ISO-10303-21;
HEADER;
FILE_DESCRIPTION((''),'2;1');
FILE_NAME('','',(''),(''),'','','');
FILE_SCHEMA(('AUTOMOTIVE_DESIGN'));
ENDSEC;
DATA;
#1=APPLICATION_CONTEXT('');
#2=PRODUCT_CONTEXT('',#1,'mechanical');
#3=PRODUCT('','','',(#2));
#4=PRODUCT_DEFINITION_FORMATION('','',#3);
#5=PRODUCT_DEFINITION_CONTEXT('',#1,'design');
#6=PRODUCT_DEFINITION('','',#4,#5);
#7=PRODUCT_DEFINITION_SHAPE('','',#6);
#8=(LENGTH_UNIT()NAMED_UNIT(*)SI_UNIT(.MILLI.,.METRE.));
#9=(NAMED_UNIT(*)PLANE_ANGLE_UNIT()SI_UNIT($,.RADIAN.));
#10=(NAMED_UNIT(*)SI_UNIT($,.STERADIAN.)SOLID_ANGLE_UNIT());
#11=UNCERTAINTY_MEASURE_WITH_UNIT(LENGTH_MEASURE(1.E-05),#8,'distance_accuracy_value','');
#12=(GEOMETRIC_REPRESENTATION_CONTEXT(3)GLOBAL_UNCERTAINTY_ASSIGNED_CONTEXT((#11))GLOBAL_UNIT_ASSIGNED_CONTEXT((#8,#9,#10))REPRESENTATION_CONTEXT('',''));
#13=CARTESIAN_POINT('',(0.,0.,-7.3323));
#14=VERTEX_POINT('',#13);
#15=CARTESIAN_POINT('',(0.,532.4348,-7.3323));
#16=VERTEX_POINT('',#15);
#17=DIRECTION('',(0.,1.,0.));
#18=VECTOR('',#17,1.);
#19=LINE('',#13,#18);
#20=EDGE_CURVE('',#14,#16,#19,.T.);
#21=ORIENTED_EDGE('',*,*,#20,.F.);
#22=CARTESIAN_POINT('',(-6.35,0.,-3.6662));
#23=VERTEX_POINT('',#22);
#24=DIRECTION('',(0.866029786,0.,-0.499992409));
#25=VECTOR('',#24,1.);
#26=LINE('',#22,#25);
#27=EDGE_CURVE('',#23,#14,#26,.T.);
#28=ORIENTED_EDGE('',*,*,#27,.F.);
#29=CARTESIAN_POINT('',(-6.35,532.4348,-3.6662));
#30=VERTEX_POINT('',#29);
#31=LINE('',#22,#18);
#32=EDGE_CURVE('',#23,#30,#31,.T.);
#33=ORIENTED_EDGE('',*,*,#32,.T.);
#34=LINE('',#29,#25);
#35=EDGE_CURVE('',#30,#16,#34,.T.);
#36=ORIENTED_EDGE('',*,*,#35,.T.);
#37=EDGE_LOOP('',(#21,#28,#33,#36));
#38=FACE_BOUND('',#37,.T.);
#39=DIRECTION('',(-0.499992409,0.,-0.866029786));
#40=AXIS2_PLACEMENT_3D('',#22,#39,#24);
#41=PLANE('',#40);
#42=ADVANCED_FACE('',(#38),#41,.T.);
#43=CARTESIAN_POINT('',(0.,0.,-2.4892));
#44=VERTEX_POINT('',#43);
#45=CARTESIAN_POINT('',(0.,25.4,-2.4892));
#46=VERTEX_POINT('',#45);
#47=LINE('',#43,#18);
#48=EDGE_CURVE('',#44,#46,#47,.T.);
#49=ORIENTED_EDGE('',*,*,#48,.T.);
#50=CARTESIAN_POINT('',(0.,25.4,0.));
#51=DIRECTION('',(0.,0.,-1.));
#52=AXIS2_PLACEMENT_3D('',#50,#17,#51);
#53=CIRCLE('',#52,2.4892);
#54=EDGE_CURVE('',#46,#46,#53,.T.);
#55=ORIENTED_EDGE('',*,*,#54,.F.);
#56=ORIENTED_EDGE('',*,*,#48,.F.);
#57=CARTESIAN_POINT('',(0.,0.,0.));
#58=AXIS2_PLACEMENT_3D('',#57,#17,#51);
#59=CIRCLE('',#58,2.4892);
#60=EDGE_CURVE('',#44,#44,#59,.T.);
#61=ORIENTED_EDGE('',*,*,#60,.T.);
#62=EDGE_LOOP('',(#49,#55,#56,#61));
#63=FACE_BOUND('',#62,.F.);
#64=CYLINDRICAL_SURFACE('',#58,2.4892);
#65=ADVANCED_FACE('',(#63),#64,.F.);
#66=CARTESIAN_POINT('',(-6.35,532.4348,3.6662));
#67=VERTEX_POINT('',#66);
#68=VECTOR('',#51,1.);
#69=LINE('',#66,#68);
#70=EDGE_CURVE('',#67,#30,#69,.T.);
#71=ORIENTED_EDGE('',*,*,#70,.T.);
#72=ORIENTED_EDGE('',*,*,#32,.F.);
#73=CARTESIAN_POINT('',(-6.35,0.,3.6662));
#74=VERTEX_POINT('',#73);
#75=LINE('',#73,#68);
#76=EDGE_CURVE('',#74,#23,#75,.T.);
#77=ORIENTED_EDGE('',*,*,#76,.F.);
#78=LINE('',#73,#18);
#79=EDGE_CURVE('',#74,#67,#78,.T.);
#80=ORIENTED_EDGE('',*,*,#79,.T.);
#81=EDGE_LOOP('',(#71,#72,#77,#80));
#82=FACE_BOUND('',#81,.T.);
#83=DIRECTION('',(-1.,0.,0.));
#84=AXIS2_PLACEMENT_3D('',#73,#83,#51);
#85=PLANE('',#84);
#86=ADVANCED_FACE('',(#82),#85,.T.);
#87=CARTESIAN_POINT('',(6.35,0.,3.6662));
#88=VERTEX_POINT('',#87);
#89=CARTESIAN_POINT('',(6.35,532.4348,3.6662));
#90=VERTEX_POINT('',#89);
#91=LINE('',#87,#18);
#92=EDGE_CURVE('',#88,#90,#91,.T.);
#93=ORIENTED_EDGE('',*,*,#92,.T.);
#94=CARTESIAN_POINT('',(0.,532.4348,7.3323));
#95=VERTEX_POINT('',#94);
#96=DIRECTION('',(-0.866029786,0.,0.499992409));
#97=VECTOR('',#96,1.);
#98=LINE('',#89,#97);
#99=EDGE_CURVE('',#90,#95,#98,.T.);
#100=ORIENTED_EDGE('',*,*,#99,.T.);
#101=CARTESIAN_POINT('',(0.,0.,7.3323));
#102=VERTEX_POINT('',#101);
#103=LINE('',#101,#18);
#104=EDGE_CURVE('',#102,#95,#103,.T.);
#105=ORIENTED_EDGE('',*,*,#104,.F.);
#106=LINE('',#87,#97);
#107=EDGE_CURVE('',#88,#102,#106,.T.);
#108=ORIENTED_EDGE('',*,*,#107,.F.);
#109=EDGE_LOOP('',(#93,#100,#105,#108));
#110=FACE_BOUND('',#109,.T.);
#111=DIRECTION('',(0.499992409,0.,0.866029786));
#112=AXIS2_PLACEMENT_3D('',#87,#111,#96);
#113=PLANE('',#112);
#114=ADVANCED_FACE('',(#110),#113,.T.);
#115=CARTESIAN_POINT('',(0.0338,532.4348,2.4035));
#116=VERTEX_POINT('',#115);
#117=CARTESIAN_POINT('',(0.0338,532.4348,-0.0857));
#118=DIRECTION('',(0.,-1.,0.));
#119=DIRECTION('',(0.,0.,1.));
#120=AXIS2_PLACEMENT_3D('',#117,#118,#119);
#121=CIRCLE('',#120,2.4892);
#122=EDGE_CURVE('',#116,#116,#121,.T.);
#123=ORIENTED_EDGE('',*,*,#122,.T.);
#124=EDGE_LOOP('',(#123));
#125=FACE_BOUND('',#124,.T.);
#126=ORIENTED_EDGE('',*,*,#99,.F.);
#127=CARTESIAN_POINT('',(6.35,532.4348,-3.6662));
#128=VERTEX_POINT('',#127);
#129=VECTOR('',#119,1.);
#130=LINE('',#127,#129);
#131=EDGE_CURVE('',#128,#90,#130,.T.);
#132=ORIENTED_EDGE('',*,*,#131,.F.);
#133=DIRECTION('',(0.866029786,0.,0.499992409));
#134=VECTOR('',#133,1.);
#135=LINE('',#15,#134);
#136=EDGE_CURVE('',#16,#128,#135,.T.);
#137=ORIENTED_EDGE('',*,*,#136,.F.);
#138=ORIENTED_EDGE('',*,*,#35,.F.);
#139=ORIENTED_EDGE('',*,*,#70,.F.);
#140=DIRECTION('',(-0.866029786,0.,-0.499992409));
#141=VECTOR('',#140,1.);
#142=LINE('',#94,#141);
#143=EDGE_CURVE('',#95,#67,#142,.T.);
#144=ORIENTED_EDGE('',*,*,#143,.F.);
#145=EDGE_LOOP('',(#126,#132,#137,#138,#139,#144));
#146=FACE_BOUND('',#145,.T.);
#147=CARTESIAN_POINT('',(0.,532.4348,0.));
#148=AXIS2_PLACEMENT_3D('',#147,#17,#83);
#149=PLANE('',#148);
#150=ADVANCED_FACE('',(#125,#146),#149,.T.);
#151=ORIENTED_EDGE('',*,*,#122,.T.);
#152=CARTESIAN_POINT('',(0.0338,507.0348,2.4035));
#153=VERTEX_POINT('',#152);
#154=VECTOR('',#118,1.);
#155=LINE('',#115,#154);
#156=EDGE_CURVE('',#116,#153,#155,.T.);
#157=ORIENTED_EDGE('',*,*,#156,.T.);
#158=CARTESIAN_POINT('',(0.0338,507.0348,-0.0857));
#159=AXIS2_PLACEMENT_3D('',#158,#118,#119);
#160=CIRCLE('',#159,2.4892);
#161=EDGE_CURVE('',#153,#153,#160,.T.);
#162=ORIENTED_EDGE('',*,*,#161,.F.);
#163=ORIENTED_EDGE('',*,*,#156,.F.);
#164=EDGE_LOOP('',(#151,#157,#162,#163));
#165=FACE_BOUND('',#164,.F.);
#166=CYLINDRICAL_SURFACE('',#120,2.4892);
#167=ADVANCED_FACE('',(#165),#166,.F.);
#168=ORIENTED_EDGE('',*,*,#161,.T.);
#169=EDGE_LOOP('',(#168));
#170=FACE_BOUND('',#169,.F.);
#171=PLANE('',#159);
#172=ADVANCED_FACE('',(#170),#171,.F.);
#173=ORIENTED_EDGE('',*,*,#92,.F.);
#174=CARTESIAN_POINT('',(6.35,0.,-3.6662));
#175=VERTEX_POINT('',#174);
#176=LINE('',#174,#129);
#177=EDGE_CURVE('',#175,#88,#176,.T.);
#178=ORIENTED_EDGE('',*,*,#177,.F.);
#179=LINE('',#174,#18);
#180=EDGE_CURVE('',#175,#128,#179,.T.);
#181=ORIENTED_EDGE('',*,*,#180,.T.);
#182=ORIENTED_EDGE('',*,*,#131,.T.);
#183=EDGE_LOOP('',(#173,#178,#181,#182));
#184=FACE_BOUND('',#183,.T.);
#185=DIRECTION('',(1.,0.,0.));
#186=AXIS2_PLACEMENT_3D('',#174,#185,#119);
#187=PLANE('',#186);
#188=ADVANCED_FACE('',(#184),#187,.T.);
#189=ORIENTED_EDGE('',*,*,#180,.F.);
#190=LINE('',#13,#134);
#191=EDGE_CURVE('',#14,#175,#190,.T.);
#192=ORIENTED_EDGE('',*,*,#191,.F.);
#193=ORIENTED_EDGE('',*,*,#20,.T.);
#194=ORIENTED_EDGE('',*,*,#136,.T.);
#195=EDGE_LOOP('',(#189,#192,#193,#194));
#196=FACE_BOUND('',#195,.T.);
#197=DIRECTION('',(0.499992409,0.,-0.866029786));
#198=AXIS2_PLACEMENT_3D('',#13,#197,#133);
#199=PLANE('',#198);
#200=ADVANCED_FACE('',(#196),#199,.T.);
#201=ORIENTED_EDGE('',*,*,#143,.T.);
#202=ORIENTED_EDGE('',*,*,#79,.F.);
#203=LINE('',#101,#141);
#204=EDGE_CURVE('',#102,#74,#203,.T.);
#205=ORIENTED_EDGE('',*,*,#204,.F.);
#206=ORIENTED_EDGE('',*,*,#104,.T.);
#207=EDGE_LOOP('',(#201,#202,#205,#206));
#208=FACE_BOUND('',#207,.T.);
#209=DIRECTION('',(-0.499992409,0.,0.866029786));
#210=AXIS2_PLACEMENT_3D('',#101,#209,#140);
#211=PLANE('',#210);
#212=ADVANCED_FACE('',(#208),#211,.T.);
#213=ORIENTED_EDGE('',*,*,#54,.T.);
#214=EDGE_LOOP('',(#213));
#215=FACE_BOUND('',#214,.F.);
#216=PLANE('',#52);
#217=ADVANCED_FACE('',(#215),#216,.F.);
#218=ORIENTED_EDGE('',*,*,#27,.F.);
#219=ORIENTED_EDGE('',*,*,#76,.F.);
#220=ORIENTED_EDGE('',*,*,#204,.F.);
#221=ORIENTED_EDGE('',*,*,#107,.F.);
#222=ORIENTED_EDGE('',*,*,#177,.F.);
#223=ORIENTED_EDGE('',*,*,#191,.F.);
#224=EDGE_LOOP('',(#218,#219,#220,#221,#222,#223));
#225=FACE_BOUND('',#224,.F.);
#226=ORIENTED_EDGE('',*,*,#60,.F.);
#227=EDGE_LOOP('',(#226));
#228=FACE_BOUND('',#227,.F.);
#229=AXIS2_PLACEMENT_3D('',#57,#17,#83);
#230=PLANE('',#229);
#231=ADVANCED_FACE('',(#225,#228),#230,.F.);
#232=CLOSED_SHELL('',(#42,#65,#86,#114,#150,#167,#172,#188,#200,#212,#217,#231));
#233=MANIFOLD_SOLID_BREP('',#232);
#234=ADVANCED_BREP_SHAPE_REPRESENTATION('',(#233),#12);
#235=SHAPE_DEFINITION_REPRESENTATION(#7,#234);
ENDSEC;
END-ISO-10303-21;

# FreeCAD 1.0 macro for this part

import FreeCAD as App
import Part
import Sketcher

V = App.Vector
Q = App.Units.Quantity

doc = App.newDocument("Part")
body = doc.addObject("PartDesign::Body", "Body")

# Sketch on XZ plane
sketch1 = body.newObject("Sketcher::SketchObject", "Sketch")
sketch1.AttachmentSupport = (doc.getObject("XZ_Plane"), [""])
sketch1.MapMode = "FlatFace"
sketch1.addGeometry(Part.LineSegment(V(0, -7, 0), V(-6, -4, 0)), False)
sketch1.addGeometry(Part.LineSegment(V(-6, -4, 0), V(-6, 4, 0)), False)
sketch1.addGeometry(Part.LineSegment(V(-6, 4, 0), V(0, 7, 0)), False)
sketch1.addGeometry(Part.LineSegment(V(0, 7, 0), V(6, 4, 0)), False)
sketch1.addGeometry(Part.LineSegment(V(6, 4, 0), V(6, -4, 0)), False)
sketch1.addGeometry(Part.LineSegment(V(6, -4, 0), V(0, -7, 0)), False)
sketch1.addConstraint(Sketcher.Constraint("Coincident", 0, 2, 1, 1))
sketch1.addConstraint(Sketcher.Constraint("Coincident", 1, 2, 2, 1))
sketch1.addConstraint(Sketcher.Constraint("Coincident", 2, 2, 3, 1))
sketch1.addConstraint(Sketcher.Constraint("Coincident", 3, 2, 4, 1))
sketch1.addConstraint(Sketcher.Constraint("Coincident", 4, 2, 5, 1))
sketch1.addConstraint(Sketcher.Constraint("Coincident", 5, 2, 0, 1))
sketch1.addConstraint(Sketcher.Constraint("Vertical", 1))
sketch1.addConstraint(Sketcher.Constraint("Vertical", 4))
sketch1.addConstraint(Sketcher.Constraint("Symmetric", 0, 2, 3, 2, -1, 1))
sketch1.addConstraint(Sketcher.Constraint("Symmetric", 2, 2, 5, 2, -1, 1))
sketch1.addConstraint(Sketcher.Constraint("PointOnObject", 2, 2, -2))
sketch1.addConstraint(Sketcher.Constraint("Parallel", 2, 5))
sketch1.addConstraint(Sketcher.Constraint("Horizontal", 1, 2, 3, 2))
sketch1.addConstraint(Sketcher.Constraint("DistanceX", 1, 2, 3, 2, Q("0.5 in")))
sketch1.addConstraint(Sketcher.Constraint("Angle", 0, Q("150.0005 deg")))
sketch1.addConstraint(Sketcher.Constraint("DistanceY", 0, 2, 2, 2, Q("0.433 in")))
pad1 = body.newObject("PartDesign::Pad", "Pad")
pad1.Profile = sketch1
pad1.Length = Q("20.962 in")
pad1.Reversed = True

# Sketch on XZ plane
sketch2 = body.newObject("Sketcher::SketchObject", "Sketch001")
sketch2.AttachmentSupport = (doc.getObject("XZ_Plane"), [""])
sketch2.MapMode = "FlatFace"
sketch2.addGeometry(Part.Circle(V(0, 0, 0), V(0, 0, 1), 2.5), False)
sketch2.addConstraint(Sketcher.Constraint("Coincident", 0, 3, -1, 1))
sketch2.addConstraint(Sketcher.Constraint("Diameter", 0, Q("0.196 in")))
doc.recompute()
hole = body.newObject("PartDesign::Hole", "Hole")
hole.Profile = sketch2
hole.ThreadType = "None"
hole.Diameter = Q("0.196 in")
hole.DepthType = "Dimension"
hole.Depth = Q("1 in")
hole.DrillPoint = "Flat"

# Sketch on XZ plane
sketch3 = body.newObject("Sketcher::SketchObject", "Sketch002")
sketch3.AttachmentSupport = (doc.getObject("XZ_Plane"), [""])
sketch3.MapMode = "FlatFace"
sketch3.AttachmentOffset = App.Placement(V(0, 0, -20.962 * 25.4), App.Rotation())
sketch3.addGeometry(Part.Circle(V(0, -0.1, 0), V(0, 0, 1), 2.5), False)
sketch3.addConstraint(Sketcher.Constraint("Diameter", 0, Q("0.196 in")))
sketch3.addConstraint(Sketcher.Constraint("DistanceX", -1, 1, 0, 3, Q("0.0338 mm")))
sketch3.addConstraint(Sketcher.Constraint("DistanceY", 0, 3, -1, 1, Q("0.0857 mm")))
doc.recompute()
hole2 = body.newObject("PartDesign::Hole", "Hole001")
hole2.Profile = sketch3
hole2.ThreadType = "None"
hole2.Diameter = Q("0.196 in")
hole2.DepthType = "Dimension"
hole2.Depth = Q("1 in")
hole2.DrillPoint = "Flat"
hole2.Reversed = True

doc.recompute()
